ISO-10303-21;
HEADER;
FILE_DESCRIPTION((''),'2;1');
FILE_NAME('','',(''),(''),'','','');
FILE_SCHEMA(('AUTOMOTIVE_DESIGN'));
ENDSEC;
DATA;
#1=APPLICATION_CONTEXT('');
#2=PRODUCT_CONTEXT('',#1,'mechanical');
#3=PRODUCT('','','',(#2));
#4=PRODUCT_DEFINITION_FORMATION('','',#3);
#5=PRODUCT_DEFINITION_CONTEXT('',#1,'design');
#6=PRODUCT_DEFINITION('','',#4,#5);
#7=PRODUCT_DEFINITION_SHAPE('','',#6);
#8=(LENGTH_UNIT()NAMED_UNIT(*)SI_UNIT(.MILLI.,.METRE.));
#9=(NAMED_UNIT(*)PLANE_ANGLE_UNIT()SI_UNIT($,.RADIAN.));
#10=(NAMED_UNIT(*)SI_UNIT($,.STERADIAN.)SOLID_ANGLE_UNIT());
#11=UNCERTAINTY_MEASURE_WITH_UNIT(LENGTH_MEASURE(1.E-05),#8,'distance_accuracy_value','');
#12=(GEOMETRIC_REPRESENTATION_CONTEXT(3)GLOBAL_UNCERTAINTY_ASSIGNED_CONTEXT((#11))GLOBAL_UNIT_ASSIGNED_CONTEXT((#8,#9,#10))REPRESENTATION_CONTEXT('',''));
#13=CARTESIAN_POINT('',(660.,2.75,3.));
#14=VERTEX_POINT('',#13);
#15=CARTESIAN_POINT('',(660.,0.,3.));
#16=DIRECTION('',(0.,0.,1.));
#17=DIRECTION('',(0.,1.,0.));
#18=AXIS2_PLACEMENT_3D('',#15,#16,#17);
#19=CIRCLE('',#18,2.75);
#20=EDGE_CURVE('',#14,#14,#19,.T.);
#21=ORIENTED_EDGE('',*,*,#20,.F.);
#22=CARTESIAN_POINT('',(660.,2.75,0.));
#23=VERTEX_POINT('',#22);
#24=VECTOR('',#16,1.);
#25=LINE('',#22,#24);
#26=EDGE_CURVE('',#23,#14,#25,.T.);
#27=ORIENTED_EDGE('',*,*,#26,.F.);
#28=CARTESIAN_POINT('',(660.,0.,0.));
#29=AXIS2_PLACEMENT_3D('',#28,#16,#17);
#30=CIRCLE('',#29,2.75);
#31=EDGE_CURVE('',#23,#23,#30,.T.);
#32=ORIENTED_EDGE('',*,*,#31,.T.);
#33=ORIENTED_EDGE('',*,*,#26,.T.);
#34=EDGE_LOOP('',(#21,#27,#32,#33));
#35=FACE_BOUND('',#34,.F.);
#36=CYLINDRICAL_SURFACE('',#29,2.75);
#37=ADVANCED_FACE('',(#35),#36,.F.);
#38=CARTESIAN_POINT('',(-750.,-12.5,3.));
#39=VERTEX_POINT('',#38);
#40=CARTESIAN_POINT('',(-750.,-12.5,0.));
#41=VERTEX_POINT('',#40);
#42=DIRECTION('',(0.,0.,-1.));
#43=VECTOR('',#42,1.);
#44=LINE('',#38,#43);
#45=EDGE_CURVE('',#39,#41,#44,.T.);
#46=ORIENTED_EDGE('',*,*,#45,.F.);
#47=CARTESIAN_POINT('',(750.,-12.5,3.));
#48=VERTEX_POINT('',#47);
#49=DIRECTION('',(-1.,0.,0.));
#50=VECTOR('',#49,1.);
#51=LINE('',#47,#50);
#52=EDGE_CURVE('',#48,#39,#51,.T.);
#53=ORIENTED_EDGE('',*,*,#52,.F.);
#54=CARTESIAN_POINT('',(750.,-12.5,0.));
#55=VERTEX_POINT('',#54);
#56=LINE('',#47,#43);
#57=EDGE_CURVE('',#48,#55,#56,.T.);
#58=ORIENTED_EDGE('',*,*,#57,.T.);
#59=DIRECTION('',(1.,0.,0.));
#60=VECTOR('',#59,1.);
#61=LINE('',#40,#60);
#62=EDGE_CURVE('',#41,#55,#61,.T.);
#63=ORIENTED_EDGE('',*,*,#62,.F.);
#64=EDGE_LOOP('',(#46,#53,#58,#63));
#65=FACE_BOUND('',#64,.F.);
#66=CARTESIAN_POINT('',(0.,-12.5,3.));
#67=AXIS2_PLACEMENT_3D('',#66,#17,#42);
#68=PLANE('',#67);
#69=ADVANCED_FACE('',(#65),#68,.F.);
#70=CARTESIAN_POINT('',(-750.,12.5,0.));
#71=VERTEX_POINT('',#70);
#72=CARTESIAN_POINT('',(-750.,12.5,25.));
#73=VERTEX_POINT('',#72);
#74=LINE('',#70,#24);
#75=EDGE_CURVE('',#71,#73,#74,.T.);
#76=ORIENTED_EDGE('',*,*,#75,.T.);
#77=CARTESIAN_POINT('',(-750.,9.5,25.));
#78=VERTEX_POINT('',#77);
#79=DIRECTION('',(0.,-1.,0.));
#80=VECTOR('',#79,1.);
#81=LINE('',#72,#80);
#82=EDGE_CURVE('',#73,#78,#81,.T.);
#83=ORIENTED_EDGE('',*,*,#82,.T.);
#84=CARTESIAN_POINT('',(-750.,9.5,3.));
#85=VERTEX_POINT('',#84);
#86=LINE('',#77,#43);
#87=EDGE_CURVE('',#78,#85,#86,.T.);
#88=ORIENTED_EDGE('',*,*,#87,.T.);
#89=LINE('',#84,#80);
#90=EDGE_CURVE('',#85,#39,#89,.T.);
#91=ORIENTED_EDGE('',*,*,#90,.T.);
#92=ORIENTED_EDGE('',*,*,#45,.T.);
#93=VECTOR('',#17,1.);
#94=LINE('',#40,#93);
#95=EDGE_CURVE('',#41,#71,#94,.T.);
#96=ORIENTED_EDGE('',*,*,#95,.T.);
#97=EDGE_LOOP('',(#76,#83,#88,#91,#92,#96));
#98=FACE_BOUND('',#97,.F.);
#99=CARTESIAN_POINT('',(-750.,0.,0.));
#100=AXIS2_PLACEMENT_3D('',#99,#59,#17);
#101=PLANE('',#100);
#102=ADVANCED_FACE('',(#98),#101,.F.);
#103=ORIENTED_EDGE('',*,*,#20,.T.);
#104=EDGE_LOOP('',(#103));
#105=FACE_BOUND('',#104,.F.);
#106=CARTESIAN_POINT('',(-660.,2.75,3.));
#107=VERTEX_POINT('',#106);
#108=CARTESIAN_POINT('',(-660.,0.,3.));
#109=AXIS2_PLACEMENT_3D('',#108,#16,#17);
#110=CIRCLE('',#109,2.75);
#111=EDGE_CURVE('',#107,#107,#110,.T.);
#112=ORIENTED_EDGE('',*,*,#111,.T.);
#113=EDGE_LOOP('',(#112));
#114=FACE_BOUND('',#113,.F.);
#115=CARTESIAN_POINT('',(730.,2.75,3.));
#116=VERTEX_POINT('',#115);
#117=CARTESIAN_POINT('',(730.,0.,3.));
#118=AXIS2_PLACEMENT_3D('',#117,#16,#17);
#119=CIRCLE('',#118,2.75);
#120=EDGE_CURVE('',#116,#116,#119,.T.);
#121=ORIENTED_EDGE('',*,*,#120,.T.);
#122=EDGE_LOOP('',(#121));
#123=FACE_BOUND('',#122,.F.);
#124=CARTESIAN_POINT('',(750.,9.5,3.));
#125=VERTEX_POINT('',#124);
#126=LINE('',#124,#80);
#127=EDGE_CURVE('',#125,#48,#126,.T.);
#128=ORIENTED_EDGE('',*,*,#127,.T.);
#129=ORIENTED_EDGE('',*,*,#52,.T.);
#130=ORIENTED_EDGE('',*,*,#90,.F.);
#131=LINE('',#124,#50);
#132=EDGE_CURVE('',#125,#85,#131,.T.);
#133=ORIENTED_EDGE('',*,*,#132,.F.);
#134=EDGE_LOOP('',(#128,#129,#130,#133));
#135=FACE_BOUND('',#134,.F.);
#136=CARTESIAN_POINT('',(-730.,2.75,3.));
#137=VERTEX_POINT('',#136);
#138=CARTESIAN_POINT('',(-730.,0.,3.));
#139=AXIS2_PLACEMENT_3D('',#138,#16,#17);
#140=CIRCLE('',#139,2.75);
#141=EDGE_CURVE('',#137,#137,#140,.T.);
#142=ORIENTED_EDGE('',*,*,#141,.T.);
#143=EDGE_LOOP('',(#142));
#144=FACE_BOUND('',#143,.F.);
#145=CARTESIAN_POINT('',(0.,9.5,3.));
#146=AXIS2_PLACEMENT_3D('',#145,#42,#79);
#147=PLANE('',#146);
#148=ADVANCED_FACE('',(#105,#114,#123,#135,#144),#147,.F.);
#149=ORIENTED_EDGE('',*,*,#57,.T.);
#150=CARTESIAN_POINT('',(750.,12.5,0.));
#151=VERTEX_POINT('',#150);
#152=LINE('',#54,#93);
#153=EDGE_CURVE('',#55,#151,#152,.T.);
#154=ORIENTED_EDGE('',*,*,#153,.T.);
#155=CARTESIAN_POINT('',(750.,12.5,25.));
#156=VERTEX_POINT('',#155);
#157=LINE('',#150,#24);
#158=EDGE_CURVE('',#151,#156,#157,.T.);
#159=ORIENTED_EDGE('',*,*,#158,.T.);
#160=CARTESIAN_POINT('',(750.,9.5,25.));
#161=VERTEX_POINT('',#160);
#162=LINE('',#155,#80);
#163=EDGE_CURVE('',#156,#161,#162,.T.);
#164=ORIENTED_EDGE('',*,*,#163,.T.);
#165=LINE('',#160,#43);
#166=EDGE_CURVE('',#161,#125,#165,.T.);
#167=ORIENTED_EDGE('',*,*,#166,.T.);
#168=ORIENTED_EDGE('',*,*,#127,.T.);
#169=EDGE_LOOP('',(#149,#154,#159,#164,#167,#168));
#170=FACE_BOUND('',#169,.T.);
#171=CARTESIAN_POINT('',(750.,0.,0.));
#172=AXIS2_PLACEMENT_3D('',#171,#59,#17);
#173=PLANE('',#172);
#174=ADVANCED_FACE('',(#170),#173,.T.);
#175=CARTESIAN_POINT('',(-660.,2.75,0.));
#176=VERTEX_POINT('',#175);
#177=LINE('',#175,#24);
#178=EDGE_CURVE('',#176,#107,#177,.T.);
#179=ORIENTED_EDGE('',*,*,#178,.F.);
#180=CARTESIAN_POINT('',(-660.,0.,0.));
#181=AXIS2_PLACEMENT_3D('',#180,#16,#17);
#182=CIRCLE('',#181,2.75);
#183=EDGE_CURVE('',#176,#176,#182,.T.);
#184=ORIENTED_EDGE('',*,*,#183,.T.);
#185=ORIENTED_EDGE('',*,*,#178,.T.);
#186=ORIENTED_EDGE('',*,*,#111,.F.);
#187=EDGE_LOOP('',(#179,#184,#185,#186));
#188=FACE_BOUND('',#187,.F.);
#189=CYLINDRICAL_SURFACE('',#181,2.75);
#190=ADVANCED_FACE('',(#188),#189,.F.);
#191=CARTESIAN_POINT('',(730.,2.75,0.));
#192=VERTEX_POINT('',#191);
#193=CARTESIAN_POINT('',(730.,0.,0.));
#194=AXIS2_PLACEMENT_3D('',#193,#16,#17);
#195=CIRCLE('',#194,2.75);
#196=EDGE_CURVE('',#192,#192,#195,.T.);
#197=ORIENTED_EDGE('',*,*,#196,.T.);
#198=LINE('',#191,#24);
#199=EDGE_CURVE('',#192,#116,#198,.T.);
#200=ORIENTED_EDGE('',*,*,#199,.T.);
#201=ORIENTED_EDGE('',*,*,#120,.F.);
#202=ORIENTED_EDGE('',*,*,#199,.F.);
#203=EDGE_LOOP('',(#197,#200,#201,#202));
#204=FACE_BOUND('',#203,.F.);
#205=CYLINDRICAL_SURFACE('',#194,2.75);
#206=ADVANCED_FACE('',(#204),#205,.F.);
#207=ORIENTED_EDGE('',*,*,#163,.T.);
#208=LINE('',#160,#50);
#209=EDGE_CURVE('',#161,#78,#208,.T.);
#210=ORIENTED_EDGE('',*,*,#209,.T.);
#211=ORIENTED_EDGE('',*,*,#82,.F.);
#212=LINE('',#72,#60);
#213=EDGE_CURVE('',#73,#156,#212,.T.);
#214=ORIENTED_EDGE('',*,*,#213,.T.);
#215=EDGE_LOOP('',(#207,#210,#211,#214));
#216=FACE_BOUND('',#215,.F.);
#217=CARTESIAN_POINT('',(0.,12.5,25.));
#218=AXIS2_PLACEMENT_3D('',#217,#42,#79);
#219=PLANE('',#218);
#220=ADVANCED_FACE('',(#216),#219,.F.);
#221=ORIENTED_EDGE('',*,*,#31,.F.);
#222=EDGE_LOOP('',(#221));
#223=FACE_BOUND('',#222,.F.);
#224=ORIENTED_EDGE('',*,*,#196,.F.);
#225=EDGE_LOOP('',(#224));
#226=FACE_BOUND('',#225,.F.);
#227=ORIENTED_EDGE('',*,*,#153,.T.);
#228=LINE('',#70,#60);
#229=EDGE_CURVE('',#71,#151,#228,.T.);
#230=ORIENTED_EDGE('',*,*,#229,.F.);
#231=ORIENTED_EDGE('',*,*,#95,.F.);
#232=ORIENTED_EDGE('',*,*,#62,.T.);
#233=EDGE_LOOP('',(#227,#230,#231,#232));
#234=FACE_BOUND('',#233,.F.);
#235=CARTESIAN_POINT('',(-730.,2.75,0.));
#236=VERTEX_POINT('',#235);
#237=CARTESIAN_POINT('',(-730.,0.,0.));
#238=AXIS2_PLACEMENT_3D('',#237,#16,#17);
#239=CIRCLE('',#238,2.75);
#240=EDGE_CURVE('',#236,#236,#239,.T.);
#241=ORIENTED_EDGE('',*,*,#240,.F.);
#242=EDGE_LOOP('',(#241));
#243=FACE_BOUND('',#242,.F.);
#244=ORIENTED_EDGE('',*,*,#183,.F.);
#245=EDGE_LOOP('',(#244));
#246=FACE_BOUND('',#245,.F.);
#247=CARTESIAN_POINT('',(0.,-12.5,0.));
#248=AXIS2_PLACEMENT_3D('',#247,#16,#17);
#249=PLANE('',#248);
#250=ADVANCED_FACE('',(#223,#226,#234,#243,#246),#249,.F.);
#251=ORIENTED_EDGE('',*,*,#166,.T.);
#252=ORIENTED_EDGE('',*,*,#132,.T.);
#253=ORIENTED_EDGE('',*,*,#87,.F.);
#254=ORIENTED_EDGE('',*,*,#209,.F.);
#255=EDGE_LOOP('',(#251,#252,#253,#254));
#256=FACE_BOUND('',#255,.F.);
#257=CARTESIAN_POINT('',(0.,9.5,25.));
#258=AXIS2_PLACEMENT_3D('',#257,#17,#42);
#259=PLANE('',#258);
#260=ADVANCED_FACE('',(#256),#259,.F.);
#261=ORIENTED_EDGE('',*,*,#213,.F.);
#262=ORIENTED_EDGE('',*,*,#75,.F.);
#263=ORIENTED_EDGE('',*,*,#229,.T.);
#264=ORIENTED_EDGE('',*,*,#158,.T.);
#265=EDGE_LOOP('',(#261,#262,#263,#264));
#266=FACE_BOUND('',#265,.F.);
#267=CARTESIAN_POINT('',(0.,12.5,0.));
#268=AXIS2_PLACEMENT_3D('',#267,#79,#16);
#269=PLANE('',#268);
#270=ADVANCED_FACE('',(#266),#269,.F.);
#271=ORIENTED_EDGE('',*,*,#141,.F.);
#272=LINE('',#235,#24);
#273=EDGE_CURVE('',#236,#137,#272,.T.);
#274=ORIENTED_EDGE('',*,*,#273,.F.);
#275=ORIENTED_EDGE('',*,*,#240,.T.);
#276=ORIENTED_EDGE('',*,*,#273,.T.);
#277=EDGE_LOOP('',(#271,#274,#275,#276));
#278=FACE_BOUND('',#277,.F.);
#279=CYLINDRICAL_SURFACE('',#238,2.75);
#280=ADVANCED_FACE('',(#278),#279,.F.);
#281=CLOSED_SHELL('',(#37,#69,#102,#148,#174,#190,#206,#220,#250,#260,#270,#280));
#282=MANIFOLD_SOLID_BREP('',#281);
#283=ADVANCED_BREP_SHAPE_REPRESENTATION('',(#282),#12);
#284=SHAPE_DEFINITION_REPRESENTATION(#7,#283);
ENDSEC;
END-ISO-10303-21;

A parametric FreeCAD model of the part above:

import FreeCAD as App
import Part
import Sketcher

V = App.Vector
Q = App.Units.Quantity

doc = App.newDocument("Part")
body = doc.addObject("PartDesign::Body", "Body")

sketch1 = body.newObject("Sketcher::SketchObject", "Sketch")
sketch1.AttachmentSupport = (doc.getObject("YZ_Plane"), [""])
sketch1.MapMode = "FlatFace"
sketch1.addGeometry([
    Part.LineSegment(V(-12.5, 3, 0), V(-12.5, 0, 0)),
    Part.LineSegment(V(-12.5, 0, 0), V(12.5, 0, 0)),
    Part.LineSegment(V(12.5, 0, 0), V(12.5, 25, 0)),
    Part.LineSegment(V(12.5, 25, 0), V(9.5, 25, 0)),
    Part.LineSegment(V(9.5, 25, 0), V(9.5, 3, 0)),
    Part.LineSegment(V(9.5, 3, 0), V(-12.5, 3, 0)),
], False)
sketch1.addConstraint([
    Sketcher.Constraint("Coincident", 0, 2, 1, 1),
    Sketcher.Constraint("Coincident", 1, 2, 2, 1),
    Sketcher.Constraint("Coincident", 2, 2, 3, 1),
    Sketcher.Constraint("Coincident", 3, 2, 4, 1),
    Sketcher.Constraint("Coincident", 4, 2, 5, 1),
    Sketcher.Constraint("Coincident", 5, 2, 0, 1),
    Sketcher.Constraint("Vertical", 0),
    Sketcher.Constraint("Horizontal", 1),
    Sketcher.Constraint("Vertical", 2),
    Sketcher.Constraint("Horizontal", 3),
    Sketcher.Constraint("Vertical", 4),
    Sketcher.Constraint("Horizontal", 5),
    Sketcher.Constraint("Symmetric", 0, 2, 1, 2, -1, 1),
    Sketcher.Constraint("Equal", 3, 0),
    Sketcher.Constraint("Equal", 1, 2),
    Sketcher.Constraint("DistanceX", 1, 1, 1, 2, Q("25 mm")),
    Sketcher.Constraint("DistanceX", 3, 2, 3, 1, Q("3 mm")),
])
pad1 = body.newObject("PartDesign::Pad", "Pad")
pad1.Profile = sketch1
pad1.Length = 1500
pad1.Midplane = True

sketch2 = body.newObject("Sketcher::SketchObject", "Sketch001")
sketch2.AttachmentSupport = (doc.getObject("XY_Plane"), [""])
sketch2.MapMode = "FlatFace"
sketch2.addGeometry([
    Part.Circle(V(-660, 0, 0), V(0, 0, 1), 2.8),
    Part.Circle(V(-730, 0, 0), V(0, 0, 1), 2.8),
    Part.Circle(V(730, 0, 0), V(0, 0, 1), 2.8),
    Part.Circle(V(660, 0, 0), V(0, 0, 1), 2.8),
], False)
sketch2.addConstraint([
    Sketcher.Constraint("Equal", 0, 1),
    Sketcher.Constraint("Equal", 1, 2),
    Sketcher.Constraint("Equal", 2, 3),
    Sketcher.Constraint("Symmetric", 1, 3, 2, 3, -1, 1),
    Sketcher.Constraint("Symmetric", 0, 3, 3, 3, -1, 1),
    Sketcher.Constraint("PointOnObject", 0, 3, -1),
    Sketcher.Constraint("PointOnObject", 1, 3, -1),
    Sketcher.Constraint("Diameter", 0, Q("5.5 mm")),
    Sketcher.Constraint("DistanceX", 0, 3, -1, 1, Q("660 mm")),
    Sketcher.Constraint("DistanceX", 1, 3, -1, 1, Q("730 mm")),
])
doc.recompute()
hole = body.newObject("PartDesign::Hole", "Hole")
hole.Profile = sketch2
hole.ThreadType = "None"
hole.Diameter = 5.5
hole.DepthType = "Dimension"
hole.Depth = 3
hole.DrillPoint = "Flat"
hole.Reversed = True

doc.recompute()
